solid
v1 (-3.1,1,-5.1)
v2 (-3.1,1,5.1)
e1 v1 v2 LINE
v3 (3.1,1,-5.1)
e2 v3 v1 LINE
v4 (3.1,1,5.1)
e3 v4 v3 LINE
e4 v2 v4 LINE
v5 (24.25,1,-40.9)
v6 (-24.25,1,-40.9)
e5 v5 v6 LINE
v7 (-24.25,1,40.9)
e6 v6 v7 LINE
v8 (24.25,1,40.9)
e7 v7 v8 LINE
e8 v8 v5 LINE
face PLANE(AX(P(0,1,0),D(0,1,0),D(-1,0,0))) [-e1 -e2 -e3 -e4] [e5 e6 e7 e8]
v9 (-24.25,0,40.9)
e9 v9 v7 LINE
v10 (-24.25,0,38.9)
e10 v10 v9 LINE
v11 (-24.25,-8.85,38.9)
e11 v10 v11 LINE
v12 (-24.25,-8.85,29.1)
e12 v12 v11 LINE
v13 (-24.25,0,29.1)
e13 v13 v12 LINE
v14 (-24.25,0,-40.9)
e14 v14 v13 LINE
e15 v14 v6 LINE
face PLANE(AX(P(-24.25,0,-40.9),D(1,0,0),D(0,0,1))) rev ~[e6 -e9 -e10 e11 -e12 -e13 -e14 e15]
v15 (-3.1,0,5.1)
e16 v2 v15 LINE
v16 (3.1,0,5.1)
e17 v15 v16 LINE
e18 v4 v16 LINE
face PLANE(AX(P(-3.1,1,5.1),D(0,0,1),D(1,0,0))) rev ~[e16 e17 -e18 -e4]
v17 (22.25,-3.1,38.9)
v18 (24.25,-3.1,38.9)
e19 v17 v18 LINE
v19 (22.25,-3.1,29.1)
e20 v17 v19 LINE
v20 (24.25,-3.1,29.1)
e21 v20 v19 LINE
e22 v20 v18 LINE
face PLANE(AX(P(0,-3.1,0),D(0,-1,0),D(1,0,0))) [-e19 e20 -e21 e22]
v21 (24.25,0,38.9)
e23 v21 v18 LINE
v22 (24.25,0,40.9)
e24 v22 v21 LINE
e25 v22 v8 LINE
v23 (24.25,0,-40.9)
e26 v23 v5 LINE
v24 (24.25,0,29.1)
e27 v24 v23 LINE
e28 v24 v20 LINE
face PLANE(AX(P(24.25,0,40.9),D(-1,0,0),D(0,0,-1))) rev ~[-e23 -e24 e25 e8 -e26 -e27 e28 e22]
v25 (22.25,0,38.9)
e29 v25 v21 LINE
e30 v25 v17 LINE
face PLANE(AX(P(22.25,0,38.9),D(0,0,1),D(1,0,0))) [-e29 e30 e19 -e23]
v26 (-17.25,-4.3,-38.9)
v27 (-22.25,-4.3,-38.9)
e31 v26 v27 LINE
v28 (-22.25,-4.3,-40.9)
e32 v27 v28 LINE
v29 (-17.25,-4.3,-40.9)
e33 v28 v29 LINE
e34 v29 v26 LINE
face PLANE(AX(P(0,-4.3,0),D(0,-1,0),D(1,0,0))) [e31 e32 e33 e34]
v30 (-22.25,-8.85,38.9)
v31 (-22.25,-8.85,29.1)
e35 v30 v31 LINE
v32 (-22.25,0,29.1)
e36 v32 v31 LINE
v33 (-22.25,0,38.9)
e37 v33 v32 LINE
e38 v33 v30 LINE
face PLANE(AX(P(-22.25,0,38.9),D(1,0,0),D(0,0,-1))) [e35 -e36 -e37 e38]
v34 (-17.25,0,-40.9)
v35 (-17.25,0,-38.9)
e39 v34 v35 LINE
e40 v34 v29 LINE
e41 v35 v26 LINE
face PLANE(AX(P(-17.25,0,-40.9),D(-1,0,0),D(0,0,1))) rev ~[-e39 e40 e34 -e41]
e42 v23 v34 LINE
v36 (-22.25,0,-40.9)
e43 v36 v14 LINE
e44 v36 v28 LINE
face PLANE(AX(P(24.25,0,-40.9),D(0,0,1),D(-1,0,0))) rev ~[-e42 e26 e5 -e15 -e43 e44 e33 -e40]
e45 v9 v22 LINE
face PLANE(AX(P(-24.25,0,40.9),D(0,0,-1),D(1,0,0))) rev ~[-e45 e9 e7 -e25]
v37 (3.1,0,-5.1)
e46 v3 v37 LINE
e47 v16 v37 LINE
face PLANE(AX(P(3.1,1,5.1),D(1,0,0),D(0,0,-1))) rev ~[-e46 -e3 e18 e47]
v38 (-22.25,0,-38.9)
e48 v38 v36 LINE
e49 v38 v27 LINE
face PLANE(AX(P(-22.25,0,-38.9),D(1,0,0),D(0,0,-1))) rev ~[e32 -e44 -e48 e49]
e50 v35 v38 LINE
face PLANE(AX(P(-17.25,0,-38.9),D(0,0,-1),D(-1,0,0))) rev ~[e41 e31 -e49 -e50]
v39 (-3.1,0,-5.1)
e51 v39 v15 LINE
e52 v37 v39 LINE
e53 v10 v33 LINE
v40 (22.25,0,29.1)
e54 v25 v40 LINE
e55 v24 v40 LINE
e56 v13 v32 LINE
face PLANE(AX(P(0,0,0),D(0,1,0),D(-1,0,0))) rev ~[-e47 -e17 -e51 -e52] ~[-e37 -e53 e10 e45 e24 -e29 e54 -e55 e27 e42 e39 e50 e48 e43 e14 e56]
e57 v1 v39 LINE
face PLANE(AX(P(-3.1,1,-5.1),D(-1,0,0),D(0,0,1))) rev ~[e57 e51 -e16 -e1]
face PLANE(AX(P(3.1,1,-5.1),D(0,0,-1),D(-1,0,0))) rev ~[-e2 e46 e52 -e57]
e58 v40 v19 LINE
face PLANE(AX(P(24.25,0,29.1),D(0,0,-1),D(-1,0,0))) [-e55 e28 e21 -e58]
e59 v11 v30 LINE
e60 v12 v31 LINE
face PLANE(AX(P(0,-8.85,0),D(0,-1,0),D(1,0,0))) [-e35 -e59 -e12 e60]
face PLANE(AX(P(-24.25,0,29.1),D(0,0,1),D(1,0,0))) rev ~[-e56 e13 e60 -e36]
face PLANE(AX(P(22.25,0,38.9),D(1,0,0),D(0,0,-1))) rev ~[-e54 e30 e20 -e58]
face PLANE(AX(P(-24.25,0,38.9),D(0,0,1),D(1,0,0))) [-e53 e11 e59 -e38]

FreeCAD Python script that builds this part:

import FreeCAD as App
import Part
import Sketcher
from FreeCAD import Vector


def add_polygon(sketch, points):
    """Adds a closed chain of lines whose ends are joined by coincident constraints."""
    first, n = sketch.GeometryCount, len(points)
    for a, b in zip(points, points[1:] + points[:1]):
        sketch.addGeometry(Part.LineSegment(App.Vector(*a, 0), App.Vector(*b, 0)), False)
    for i in range(n):
        sketch.addConstraint(Sketcher.Constraint("Coincident", first + i, 2, first + (i + 1) % n, 1))

doc = App.newDocument("Part")
body = doc.addObject("PartDesign::Body", "Body")

sketch1 = body.newObject("Sketcher::SketchObject", "Sketch")
sketch1.AttachmentSupport = (doc.getObject("XZ_Plane"), [""])
sketch1.MapMode = "FlatFace"
add_polygon(sketch1, [(24.25, 40.9), (24.25, -40.9), (-24.25, -40.9), (-24.25, 40.9)])
sketch1.addConstraint([
    Sketcher.Constraint("Vertical", 0),
    Sketcher.Constraint("Horizontal", 1),
    Sketcher.Constraint("Vertical", 2),
    Sketcher.Constraint("Horizontal", 3),
    Sketcher.Constraint("Symmetric", 0, 2, 2, 2, -1, 1),
    Sketcher.Constraint("DistanceX", 1, 2, 1, 1, 48.5),
    Sketcher.Constraint("DistanceY", 0, 2, 0, 1, 81.8),
])
pad1 = body.newObject("PartDesign::Pad", "Pad")
pad1.Profile = sketch1
pad1.Length = 1
pad1.Reversed = True

sketch2 = body.newObject("Sketcher::SketchObject", "Sketch001")
sketch2.AttachmentSupport = (doc.getObject("XZ_Plane"), [""])
sketch2.MapMode = "FlatFace"
sketch2.AttachmentOffset = App.Placement(Vector(0, 0, -1), App.Rotation())
add_polygon(sketch2, [(3.1, 5.1), (3.1, -5.1), (-3.1, -5.1), (-3.1, 5.1)])
sketch2.addConstraint([
    Sketcher.Constraint("Vertical", 0),
    Sketcher.Constraint("Horizontal", 1),
    Sketcher.Constraint("Vertical", 2),
    Sketcher.Constraint("Horizontal", 3),
    Sketcher.Constraint("Symmetric", 0, 2, 2, 2, -1, 1),
    Sketcher.Constraint("DistanceX", 1, 2, 1, 1, 6.2),
    Sketcher.Constraint("DistanceY", 0, 2, 0, 1, 10.2),
])
pocket1 = body.newObject("PartDesign::Pocket", "Pocket")
pocket1.Profile = sketch2
pocket1.Length = 1
pocket1.Reversed = True

sketch3 = body.newObject("Sketcher::SketchObject", "Sketch002")
sketch3.AttachmentSupport = (doc.getObject("XZ_Plane"), [""])
sketch3.MapMode = "FlatFace"
add_polygon(sketch3, [(-22.25, -38.9), (-22.25, -40.9), (-17.25, -40.9), (-17.25, -38.9)])
sketch3.addConstraint([
    Sketcher.Constraint("Vertical", 0),
    Sketcher.Constraint("Horizontal", 1),
    Sketcher.Constraint("Vertical", 2),
    Sketcher.Constraint("Horizontal", 3),
    Sketcher.Constraint("DistanceX", 1, 1, 1, 2, 5.0),
    Sketcher.Constraint("DistanceY", 0, 2, 0, 1, 2.0),
    Sketcher.Constraint("DistanceY", 0, 2, -1, 1, 40.9),
    Sketcher.Constraint("DistanceX", 0, 2, -1, 1, 22.25),
])
pad2 = body.newObject("PartDesign::Pad", "Pad001")
pad2.Profile = sketch3
pad2.Length = 4.3

sketch4 = body.newObject("Sketcher::SketchObject", "Sketch003")
sketch4.AttachmentSupport = (doc.getObject("XZ_Plane"), [""])
sketch4.MapMode = "FlatFace"
add_polygon(sketch4, [(-24.25, 38.9), (-24.25, 29.1), (-22.25, 29.1), (-22.25, 38.9)])
sketch4.addConstraint([
    Sketcher.Constraint("Vertical", 0),
    Sketcher.Constraint("Horizontal", 1),
    Sketcher.Constraint("Vertical", 2),
    Sketcher.Constraint("Horizontal", 3),
    Sketcher.Constraint("DistanceX", 1, 1, 1, 2, 2.0),
    Sketcher.Constraint("DistanceY", 0, 2, 0, 1, 9.8),
    Sketcher.Constraint("DistanceY", -1, 1, 0, 2, 29.1),
    Sketcher.Constraint("DistanceX", 0, 2, -1, 1, 24.25),
])
pad3 = body.newObject("PartDesign::Pad", "Pad002")
pad3.Profile = sketch4
pad3.Length = 8.85

sketch5 = body.newObject("Sketcher::SketchObject", "Sketch004")
sketch5.AttachmentSupport = (doc.getObject("XZ_Plane"), [""])
sketch5.MapMode = "FlatFace"
add_polygon(sketch5, [(22.25, 29.1), (24.25, 29.1), (24.25, 38.9), (22.25, 38.9)])
sketch5.addConstraint([
    Sketcher.Constraint("Horizontal", 0),
    Sketcher.Constraint("Vertical", 1),
    Sketcher.Constraint("Horizontal", 2),
    Sketcher.Constraint("Vertical", 3),
    Sketcher.Constraint("DistanceX", 0, 1, 0, 2, 2.0),
    Sketcher.Constraint("DistanceY", 1, 1, 1, 2, 9.8),
    Sketcher.Constraint("DistanceY", -1, 1, 0, 2, 29.1),
    Sketcher.Constraint("DistanceX", -1, 1, 0, 2, 24.25),
])
pad4 = body.newObject("PartDesign::Pad", "Pad003")
pad4.Profile = sketch5
pad4.Length = 3.1

doc.recompute()
